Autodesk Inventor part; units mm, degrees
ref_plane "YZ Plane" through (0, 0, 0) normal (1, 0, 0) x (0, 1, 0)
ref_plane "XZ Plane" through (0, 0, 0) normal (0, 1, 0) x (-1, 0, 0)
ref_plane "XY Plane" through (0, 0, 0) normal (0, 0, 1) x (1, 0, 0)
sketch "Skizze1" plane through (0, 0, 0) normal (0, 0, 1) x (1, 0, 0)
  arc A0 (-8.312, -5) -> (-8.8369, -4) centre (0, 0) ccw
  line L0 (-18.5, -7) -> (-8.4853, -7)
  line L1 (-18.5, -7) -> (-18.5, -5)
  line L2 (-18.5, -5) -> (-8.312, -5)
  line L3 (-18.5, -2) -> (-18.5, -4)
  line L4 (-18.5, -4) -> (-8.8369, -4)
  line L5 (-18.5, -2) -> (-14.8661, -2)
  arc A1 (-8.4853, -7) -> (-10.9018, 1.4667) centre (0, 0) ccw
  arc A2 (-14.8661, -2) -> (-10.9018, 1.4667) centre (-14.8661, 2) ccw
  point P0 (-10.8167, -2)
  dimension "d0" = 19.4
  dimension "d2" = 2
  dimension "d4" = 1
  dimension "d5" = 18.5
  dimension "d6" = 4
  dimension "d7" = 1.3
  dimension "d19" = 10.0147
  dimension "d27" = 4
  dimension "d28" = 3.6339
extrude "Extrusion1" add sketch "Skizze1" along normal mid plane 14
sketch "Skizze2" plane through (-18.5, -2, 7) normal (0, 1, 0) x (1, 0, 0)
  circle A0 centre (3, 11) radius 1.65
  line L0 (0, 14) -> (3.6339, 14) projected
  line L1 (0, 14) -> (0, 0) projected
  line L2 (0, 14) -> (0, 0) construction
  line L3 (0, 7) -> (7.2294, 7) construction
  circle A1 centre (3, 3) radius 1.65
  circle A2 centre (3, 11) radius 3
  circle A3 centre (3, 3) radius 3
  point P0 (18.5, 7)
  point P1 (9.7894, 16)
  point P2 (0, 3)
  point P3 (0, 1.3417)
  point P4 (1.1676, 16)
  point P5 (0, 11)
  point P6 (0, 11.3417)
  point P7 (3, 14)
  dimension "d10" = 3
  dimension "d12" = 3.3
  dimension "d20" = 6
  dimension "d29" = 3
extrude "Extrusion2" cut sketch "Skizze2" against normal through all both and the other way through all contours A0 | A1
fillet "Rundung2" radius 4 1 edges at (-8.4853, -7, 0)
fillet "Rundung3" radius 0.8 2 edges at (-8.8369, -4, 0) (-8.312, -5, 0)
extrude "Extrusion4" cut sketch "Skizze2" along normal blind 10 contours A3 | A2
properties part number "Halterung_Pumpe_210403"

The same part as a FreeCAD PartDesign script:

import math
import FreeCAD as App
import Part
import Sketcher
from FreeCAD import Vector


def edges_at(feature, points):
    """Names of the edges that pass closest to the given points."""
    edges = feature.Shape.Edges
    near = lambda p: min(range(len(edges)), key=lambda i: edges[i].distToShape(Part.Vertex(*p))[0])
    return sorted({f"Edge{near(p) + 1}" for p in points})

doc = App.newDocument("Part")
body = doc.addObject("PartDesign::Body", "Body")

sketch1 = body.newObject("Sketcher::SketchObject", "Sketch")
sketch1.AttachmentSupport = (doc.getObject("XY_Plane"), [""])
sketch1.MapMode = "FlatFace"
sketch1.addGeometry([
    Part.ArcOfCircle(Part.Circle(Vector(0, 0, 0), Vector(0, 0, 1), 9.699966), math.radians(-148.971411), math.radians(204.353763)),
    Part.LineSegment(Vector(-8.312, -5, 0), Vector(-18.5, -5, 0)),
    Part.LineSegment(Vector(-18.5, -5, 0), Vector(-18.5, -7, 0)),
    Part.LineSegment(Vector(-18.5, -7, 0), Vector(-8.4853, -7, 0)),
    Part.ArcOfCircle(Part.Circle(Vector(0, 0, 0), Vector(0, 0, 1), 11.000014), math.radians(-140.478865), math.radians(172.337584)),
    Part.ArcOfCircle(Part.Circle(Vector(-14.8661, 2, 0), Vector(0, 0, 1), 4), math.radians(-90), math.radians(-7.661754)),
    Part.LineSegment(Vector(-14.8661, -2, 0), Vector(-18.5, -2, 0)),
    Part.LineSegment(Vector(-18.5, -2, 0), Vector(-18.5, -4, 0)),
    Part.LineSegment(Vector(-18.5, -4, 0), Vector(-8.8369, -4, 0)),
], False)
sketch1.addConstraint([
    Sketcher.Constraint("Coincident", 0, 1, 1, 1),
    Sketcher.Constraint("Coincident", 1, 2, 2, 1),
    Sketcher.Constraint("Coincident", 2, 2, 3, 1),
    Sketcher.Constraint("Coincident", 3, 2, 4, 1),
    Sketcher.Constraint("Tangent", 4, 2, 5, 2),
    Sketcher.Constraint("Tangent", 5, 1, 6, 1),
    Sketcher.Constraint("Coincident", 6, 2, 7, 1),
    Sketcher.Constraint("Coincident", 7, 2, 8, 1),
    Sketcher.Constraint("Coincident", 8, 2, 0, 2),
    Sketcher.Constraint("Horizontal", 1),
    Sketcher.Constraint("Vertical", 2),
    Sketcher.Constraint("Horizontal", 3),
    Sketcher.Constraint("Horizontal", 6),
    Sketcher.Constraint("Vertical", 7),
    Sketcher.Constraint("Horizontal", 8),
    Sketcher.Constraint("Coincident", 0, 3, -1, 1),
    Sketcher.Constraint("Coincident", 4, 3, -1, 1),
    Sketcher.Constraint("Vertical", 2, 2, 6, 2),
    Sketcher.Constraint("Equal", 2, 7),
    Sketcher.Constraint("Radius", 5, 4.0),
    Sketcher.Constraint("Radius", 0, 9.7),
    Sketcher.Constraint("DistanceY", 2, 2, 2, 1, 2.0),
    Sketcher.Constraint("DistanceY", -1, 1, 5, 3, 2.0),
    Sketcher.Constraint("Radius", 4, 11.0),
    Sketcher.Constraint("DistanceY", 1, 2, 7, 2, 1.0),
    Sketcher.Constraint("DistanceX", 1, 2, -1, 1, 18.5),
])
pad1 = body.newObject("PartDesign::Pad", "Pad")
pad1.Profile = sketch1
pad1.Length = 14
pad1.Midplane = True

sketch2 = body.newObject("Sketcher::SketchObject", "Sketch001")
sketch2.AttachmentSupport = (doc.getObject("XZ_Plane"), [""])
sketch2.MapMode = "FlatFace"
sketch2.AttachmentOffset = App.Placement(Vector(0, 0, 2), App.Rotation())
sketch2.addGeometry([
    Part.Circle(Vector(-15.5, -4, 0), Vector(0, 0, 1), 1.65),
    Part.Circle(Vector(-15.5, 4, 0), Vector(0, 0, 1), 1.65),
], False)
sketch2.addConstraint([
    Sketcher.Constraint("Equal", 0, 1),
    Sketcher.Constraint("Symmetric", 0, 3, 1, 3, -1),
    Sketcher.Constraint("Diameter", 0, 3.3),
    Sketcher.Constraint("DistanceY", 0, 3, -1, 1, 4.0),
    Sketcher.Constraint("DistanceX", 0, 3, -1, 1, 15.5),
])
pocket1 = body.newObject("PartDesign::Pocket", "Pocket")
pocket1.Profile = sketch2
pocket1.Type = "ThroughAll"
pocket1.Midplane = True
doc.recompute()

fillet = body.newObject("PartDesign::Fillet", "Fillet")
fillet.Base = (pocket1, edges_at(pocket1, [(-8.485, -7, 0)]))
fillet.Radius = 4
doc.recompute()

fillet2 = body.newObject("PartDesign::Fillet", "Fillet001")
fillet2.Base = (fillet, edges_at(fillet, [(-8.837, -4, 0), (-8.312, -5, 0)]))
fillet2.Radius = 0.8

sketch3 = body.newObject("Sketcher::SketchObject", "Sketch002")
sketch3.AttachmentSupport = (doc.getObject("XZ_Plane"), [""])
sketch3.MapMode = "FlatFace"
sketch3.AttachmentOffset = App.Placement(Vector(0, 0, 2), App.Rotation())
sketch3.addGeometry([
    Part.Circle(Vector(-15.5, 4, 0), Vector(0, 0, 1), 3),
    Part.Circle(Vector(-15.5, 4, 0), Vector(0, 0, 1), 1.65),
    Part.Circle(Vector(-15.5, -4, 0), Vector(0, 0, 1), 3),
    Part.Circle(Vector(-15.5, -4, 0), Vector(0, 0, 1), 1.65),
], False)
sketch3.addConstraint([
    Sketcher.Constraint("Coincident", 1, 3, 0, 3),
    Sketcher.Constraint("Coincident", 3, 3, 2, 3),
    Sketcher.Constraint("Equal", 0, 2),
    Sketcher.Constraint("Equal", 1, 3),
    Sketcher.Constraint("Symmetric", 0, 3, 2, 3, -1),
    Sketcher.Constraint("Diameter", 0, 6.0),
    Sketcher.Constraint("Diameter", 1, 3.3),
    Sketcher.Constraint("DistanceY", -1, 1, 0, 3, 4.0),
    Sketcher.Constraint("DistanceX", 0, 3, -1, 1, 15.5),
])
pocket2 = body.newObject("PartDesign::Pocket", "Pocket001")
pocket2.Profile = sketch3
pocket2.Length = 10

doc.recompute()
